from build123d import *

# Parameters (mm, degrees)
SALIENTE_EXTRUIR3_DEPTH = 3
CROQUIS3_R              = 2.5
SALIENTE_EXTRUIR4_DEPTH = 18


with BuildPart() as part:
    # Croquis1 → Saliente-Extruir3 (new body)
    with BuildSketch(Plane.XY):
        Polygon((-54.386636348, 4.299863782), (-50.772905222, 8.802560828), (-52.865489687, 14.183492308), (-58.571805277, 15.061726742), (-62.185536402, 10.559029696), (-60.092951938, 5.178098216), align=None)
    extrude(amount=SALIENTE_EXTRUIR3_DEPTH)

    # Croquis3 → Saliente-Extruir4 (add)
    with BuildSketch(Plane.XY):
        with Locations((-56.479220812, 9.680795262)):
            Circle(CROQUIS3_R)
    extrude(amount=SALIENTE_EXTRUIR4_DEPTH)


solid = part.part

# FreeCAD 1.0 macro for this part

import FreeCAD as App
import Part
import Sketcher
Q = App.Units.Quantity

doc = App.newDocument("Part")
params = doc.addObject("Spreadsheet::Sheet", "Params")
for row, (alias, value) in enumerate([
    ("pad1_length", "3 mm"),
    ("sketch2_diameter", "5 mm"),
    ("pad2_length", "18 mm"),
], start=1):
    params.set(f"A{row}", alias)
    params.set(f"B{row}", "=" + value)
    params.setAlias(f"B{row}", alias)

body = doc.addObject("PartDesign::Body", "Body")

# Sketch on XY plane
sketch1 = body.newObject("Sketcher::SketchObject", "Sketch")
sketch1.AttachmentSupport = (doc.getObject("XY_Plane"), [""])
sketch1.MapMode = "FlatFace"
sketch1.addGeometry([
    Part.LineSegment(App.Vector(-54, 4, 0), App.Vector(-51, 9, 0)),  # 0
    Part.LineSegment(App.Vector(-51, 9, 0), App.Vector(-53, 14, 0)),  # 1
    Part.LineSegment(App.Vector(-53, 14, 0), App.Vector(-59, 15, 0)),  # 2
    Part.LineSegment(App.Vector(-59, 15, 0), App.Vector(-62, 11, 0)),  # 3
    Part.LineSegment(App.Vector(-62, 11, 0), App.Vector(-60, 5, 0)),  # 4
    Part.LineSegment(App.Vector(-60, 5, 0), App.Vector(-54, 4, 0)),  # 5
], False)
sketch1.addConstraint([
    Sketcher.Constraint("Coincident", 0, 2, 1, 1),
    Sketcher.Constraint("Coincident", 1, 2, 2, 1),
    Sketcher.Constraint("Coincident", 2, 2, 3, 1),
    Sketcher.Constraint("Coincident", 3, 2, 4, 1),
    Sketcher.Constraint("Coincident", 4, 2, 5, 1),
    Sketcher.Constraint("Coincident", 5, 2, 0, 1),
    Sketcher.Constraint("Parallel", 0, 3),
    Sketcher.Constraint("Parallel", 1, 4),
    Sketcher.Constraint("Parallel", 2, 5),
    Sketcher.Constraint("Equal", 0, 1),
    Sketcher.Constraint("Equal", 1, 2),
    Sketcher.Constraint("Equal", 2, 3),
    Sketcher.Constraint("DistanceY", -1, 1, 4, 2, Q("5.178098 mm")),
    Sketcher.Constraint("DistanceX", 2, 2, 0, 2, Q("7.7989 mm")),
    Sketcher.Constraint("DistanceY", -1, 1, 0, 2, Q("8.802561 mm")),
    Sketcher.Constraint("DistanceX", 1, 2, -1, 1, Q("52.86549 mm")),
    Sketcher.Constraint("DistanceY", -1, 1, 3, 2, Q("10.55903 mm")),
    Sketcher.Constraint("DistanceX", 4, 2, -1, 1, Q("60.092952 mm")),
])
pad1 = body.newObject("PartDesign::Pad", "Pad")
pad1.Profile = sketch1
pad1.setExpression("Length", "Params.pad1_length")

# Sketch on XY plane
sketch2 = body.newObject("Sketcher::SketchObject", "Sketch001")
sketch2.AttachmentSupport = (doc.getObject("XY_Plane"), [""])
sketch2.MapMode = "FlatFace"
sketch2.addGeometry(Part.Circle(App.Vector(-56.5, 9.7, 0), App.Vector(0, 0, 1), 2.5), False)
sketch2.addConstraint([
    Sketcher.Constraint("Diameter", 0, Q("5 mm")),
    Sketcher.Constraint("DistanceX", 0, 3, -1, 1, Q("56.479221 mm")),
    Sketcher.Constraint("DistanceY", -1, 1, 0, 3, Q("9.680795 mm")),
])
sketch2.setExpression("Constraints[0]", "Params.sketch2_diameter")
pad2 = body.newObject("PartDesign::Pad", "Pad001")
pad2.Profile = sketch2
pad2.setExpression("Length", "Params.pad2_length")

doc.recompute()
